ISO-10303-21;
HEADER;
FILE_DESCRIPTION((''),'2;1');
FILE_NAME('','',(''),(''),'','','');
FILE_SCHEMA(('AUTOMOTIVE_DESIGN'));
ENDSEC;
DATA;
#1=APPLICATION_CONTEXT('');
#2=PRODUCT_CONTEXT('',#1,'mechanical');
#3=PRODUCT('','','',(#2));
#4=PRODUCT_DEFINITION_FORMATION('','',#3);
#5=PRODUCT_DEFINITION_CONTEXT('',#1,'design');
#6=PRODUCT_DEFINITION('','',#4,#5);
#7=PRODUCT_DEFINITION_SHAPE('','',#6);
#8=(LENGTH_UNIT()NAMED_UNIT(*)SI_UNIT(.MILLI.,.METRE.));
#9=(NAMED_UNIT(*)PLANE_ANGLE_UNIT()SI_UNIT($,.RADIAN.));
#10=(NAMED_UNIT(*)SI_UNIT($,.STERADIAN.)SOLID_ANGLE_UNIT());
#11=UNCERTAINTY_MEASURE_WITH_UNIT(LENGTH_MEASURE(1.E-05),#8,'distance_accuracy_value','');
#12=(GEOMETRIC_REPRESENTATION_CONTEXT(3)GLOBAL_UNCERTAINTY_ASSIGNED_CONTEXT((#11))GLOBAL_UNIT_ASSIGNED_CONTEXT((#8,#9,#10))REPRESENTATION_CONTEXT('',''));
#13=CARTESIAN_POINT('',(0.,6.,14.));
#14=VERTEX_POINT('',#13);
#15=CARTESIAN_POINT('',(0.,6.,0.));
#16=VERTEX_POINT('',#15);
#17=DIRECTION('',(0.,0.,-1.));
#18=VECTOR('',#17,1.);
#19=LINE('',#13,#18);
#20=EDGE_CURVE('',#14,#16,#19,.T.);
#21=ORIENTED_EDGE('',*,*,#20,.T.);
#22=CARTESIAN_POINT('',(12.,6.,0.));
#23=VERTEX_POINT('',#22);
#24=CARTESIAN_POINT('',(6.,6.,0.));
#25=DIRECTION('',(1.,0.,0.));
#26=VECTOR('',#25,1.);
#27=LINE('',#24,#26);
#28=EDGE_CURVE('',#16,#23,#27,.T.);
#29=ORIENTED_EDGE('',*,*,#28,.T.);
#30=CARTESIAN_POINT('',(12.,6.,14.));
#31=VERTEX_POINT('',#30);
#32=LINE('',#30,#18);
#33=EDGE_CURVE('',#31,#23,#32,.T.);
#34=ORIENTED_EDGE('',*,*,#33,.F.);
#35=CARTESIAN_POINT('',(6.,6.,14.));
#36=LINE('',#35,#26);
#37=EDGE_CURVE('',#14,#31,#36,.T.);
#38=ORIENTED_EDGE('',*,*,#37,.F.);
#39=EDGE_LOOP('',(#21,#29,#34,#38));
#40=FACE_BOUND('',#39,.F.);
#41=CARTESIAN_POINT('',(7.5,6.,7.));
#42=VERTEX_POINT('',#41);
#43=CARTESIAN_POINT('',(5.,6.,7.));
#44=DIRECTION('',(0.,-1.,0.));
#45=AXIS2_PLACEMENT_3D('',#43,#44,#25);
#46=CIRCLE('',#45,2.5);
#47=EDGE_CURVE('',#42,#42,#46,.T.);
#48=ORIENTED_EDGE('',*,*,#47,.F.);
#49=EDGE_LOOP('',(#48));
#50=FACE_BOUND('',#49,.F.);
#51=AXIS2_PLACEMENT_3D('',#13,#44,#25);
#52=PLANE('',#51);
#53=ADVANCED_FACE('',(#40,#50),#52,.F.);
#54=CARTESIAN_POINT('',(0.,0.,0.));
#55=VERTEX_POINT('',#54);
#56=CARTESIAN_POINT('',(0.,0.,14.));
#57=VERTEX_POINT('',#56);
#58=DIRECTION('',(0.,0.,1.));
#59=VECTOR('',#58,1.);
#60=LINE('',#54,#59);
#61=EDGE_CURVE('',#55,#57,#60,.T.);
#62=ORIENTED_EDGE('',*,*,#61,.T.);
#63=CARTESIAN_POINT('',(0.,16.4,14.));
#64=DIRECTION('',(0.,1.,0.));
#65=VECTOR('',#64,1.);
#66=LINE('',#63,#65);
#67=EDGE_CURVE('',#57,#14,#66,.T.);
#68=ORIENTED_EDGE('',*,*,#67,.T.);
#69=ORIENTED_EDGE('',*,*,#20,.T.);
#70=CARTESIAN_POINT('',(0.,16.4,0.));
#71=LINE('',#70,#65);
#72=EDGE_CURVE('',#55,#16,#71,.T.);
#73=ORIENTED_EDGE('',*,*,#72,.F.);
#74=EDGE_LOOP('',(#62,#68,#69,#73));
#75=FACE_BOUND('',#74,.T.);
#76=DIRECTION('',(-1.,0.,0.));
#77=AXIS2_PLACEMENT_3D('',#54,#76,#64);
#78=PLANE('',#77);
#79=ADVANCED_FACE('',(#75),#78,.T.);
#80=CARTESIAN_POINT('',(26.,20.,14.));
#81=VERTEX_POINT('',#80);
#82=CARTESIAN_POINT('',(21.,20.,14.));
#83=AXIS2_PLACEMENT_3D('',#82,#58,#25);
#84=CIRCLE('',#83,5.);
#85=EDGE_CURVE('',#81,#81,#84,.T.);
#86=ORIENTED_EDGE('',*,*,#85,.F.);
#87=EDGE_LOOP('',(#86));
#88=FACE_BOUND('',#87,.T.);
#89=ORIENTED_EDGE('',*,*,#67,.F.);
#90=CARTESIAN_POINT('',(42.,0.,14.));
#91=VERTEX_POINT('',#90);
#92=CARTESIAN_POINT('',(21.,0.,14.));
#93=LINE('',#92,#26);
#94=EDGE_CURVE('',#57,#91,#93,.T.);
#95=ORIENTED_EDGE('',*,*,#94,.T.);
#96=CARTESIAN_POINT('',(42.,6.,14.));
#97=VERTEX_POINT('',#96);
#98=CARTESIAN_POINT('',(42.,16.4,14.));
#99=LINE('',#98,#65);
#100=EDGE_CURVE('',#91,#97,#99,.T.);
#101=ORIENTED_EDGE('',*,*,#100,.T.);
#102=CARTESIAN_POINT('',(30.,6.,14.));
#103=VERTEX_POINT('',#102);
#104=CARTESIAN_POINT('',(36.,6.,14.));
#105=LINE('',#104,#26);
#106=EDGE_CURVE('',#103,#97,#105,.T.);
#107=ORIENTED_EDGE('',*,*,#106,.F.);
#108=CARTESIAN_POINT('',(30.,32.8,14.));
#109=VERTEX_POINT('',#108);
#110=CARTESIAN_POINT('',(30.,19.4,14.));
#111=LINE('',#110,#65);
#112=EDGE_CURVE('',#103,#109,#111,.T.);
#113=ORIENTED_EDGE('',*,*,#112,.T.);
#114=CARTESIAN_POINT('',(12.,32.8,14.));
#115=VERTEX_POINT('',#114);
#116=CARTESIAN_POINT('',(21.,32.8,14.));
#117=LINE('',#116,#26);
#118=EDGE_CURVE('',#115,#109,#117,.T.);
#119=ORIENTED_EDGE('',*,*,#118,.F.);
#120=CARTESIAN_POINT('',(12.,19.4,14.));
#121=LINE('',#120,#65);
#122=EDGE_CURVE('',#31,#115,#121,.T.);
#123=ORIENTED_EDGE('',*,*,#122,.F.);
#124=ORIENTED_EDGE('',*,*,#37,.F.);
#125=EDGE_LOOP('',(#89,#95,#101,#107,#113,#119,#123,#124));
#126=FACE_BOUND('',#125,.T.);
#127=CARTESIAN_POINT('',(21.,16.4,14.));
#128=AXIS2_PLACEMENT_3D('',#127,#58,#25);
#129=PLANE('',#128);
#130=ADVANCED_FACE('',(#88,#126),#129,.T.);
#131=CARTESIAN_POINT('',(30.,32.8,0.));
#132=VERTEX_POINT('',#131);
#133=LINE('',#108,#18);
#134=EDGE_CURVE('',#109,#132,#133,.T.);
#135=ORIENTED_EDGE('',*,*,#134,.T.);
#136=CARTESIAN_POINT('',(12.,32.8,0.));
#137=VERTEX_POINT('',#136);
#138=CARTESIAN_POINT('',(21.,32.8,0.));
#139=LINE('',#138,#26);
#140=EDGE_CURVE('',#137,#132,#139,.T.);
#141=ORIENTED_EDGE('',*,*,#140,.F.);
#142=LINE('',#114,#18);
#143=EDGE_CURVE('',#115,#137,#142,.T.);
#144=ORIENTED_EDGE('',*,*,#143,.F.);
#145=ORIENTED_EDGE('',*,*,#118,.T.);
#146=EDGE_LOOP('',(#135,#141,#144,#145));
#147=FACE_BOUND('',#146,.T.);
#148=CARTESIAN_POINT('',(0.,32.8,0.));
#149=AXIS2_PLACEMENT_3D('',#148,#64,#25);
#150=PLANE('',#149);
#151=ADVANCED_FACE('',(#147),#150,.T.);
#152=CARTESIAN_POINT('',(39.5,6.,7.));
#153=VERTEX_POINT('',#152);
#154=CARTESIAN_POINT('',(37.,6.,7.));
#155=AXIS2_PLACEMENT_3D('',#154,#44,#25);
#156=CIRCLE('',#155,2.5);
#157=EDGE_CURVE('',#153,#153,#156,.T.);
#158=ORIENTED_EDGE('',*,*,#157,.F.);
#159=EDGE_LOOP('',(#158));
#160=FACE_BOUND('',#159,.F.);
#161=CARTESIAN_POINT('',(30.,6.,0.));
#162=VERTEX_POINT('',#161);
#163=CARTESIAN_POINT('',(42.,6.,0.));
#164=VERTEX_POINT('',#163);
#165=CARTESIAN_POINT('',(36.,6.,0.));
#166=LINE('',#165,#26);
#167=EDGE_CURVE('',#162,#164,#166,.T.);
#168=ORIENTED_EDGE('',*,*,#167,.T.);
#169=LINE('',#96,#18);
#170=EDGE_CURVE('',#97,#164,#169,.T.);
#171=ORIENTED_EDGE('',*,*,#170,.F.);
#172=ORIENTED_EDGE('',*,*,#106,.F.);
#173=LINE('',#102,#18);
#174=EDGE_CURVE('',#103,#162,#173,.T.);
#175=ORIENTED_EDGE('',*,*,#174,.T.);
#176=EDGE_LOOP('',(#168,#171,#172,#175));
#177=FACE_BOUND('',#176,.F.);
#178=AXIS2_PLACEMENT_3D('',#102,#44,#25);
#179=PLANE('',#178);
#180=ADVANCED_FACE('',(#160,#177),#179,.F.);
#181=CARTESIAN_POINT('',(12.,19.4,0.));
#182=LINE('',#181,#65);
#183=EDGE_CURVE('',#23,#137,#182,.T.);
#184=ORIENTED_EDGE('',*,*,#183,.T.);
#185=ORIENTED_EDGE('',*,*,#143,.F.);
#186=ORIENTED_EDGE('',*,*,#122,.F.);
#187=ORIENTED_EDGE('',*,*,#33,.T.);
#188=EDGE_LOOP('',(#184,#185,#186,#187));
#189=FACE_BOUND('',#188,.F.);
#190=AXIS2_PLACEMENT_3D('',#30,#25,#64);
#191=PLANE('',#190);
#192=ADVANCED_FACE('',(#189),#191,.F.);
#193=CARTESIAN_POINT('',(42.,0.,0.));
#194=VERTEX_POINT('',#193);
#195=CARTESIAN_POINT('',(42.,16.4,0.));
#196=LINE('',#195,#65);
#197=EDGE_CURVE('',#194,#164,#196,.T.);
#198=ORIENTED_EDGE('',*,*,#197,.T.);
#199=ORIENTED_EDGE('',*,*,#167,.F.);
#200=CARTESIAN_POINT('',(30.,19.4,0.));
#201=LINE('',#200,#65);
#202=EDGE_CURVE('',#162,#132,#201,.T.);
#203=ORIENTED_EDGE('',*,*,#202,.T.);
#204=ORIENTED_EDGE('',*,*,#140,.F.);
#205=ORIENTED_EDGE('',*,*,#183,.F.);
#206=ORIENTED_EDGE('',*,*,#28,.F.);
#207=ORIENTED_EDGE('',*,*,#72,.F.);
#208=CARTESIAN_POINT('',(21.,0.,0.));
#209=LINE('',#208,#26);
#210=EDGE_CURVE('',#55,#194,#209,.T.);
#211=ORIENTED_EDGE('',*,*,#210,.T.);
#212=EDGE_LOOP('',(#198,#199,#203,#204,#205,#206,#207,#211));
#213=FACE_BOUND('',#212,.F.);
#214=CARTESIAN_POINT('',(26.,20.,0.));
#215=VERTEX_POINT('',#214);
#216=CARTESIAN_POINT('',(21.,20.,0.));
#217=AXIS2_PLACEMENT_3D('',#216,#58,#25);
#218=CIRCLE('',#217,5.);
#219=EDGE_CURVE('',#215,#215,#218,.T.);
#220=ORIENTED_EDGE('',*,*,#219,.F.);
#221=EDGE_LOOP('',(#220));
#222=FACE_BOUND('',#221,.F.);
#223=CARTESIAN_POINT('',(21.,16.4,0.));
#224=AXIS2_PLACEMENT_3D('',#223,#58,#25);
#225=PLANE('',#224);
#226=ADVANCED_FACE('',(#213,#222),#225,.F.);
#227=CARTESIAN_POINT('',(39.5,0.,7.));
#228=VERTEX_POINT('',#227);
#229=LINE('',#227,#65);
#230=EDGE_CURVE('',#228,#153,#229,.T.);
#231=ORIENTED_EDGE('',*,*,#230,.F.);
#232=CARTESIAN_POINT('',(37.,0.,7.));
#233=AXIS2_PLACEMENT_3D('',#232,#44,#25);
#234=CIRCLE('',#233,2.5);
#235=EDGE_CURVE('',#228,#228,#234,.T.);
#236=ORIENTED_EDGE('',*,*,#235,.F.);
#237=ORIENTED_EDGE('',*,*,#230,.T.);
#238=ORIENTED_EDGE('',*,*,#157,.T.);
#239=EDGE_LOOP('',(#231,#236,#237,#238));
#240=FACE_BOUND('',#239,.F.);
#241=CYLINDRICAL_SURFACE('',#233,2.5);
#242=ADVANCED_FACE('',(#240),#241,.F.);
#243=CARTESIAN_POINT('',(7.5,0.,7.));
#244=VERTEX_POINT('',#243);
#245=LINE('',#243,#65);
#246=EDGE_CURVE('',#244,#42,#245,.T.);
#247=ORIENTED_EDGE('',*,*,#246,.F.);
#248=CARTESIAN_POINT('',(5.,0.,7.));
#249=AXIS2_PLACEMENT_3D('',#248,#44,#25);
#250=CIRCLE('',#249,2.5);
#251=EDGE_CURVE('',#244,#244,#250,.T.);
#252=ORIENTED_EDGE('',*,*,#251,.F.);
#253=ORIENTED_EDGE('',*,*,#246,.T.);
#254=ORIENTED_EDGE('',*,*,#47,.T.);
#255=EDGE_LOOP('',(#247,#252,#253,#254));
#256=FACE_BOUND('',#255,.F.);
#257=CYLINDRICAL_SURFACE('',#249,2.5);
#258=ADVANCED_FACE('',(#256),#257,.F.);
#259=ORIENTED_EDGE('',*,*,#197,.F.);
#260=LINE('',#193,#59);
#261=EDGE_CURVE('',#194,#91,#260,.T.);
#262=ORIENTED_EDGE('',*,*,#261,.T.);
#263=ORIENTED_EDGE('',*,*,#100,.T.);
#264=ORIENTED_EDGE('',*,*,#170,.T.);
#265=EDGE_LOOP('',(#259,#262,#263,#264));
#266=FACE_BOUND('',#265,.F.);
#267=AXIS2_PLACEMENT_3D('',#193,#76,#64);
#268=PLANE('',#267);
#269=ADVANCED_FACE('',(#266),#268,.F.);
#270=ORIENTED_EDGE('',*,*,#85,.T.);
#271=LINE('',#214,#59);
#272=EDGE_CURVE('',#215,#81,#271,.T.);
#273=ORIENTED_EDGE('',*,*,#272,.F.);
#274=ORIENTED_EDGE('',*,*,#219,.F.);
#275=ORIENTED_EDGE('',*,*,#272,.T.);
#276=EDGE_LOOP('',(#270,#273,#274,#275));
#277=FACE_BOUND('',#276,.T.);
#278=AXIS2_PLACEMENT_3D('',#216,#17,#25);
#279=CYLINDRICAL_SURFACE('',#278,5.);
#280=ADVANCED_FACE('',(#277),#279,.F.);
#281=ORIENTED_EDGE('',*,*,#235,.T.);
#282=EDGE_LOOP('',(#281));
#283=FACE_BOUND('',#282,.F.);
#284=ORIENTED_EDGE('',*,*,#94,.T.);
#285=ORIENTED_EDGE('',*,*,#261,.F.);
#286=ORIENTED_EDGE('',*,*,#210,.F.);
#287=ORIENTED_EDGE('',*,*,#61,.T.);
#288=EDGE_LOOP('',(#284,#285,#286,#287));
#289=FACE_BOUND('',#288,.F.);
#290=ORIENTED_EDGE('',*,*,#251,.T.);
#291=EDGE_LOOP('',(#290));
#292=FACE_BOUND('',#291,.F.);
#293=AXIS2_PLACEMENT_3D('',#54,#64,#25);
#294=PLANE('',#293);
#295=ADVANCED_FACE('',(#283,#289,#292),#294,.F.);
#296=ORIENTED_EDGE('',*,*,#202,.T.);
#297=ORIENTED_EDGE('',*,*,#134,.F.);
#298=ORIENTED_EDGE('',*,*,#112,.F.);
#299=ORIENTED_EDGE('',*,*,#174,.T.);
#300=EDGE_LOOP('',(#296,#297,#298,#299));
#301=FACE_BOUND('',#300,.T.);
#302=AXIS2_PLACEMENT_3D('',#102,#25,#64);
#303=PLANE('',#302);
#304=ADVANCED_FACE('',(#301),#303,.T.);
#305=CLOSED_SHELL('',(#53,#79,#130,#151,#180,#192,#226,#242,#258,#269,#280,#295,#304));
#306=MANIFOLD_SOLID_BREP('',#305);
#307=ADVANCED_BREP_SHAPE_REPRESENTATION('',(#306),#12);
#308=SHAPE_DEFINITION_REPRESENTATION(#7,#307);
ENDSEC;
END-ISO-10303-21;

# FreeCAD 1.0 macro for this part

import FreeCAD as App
import Part
import Sketcher
Q = App.Units.Quantity

doc = App.newDocument("Part")
body = doc.addObject("PartDesign::Body", "Body")

sketch1 = body.newObject("Sketcher::SketchObject", "Sketch")
sketch1.AttachmentSupport = (doc.getObject("XY_Plane"), [""])
sketch1.MapMode = "FlatFace"
sketch1.addGeometry(Part.LineSegment(App.Vector(0, 33, 0), App.Vector(0, 0, 0)), False)
sketch1.addGeometry(Part.LineSegment(App.Vector(0, 0, 0), App.Vector(42, 0, 0)), False)
sketch1.addGeometry(Part.LineSegment(App.Vector(42, 0, 0), App.Vector(42, 33, 0)), False)
sketch1.addGeometry(Part.LineSegment(App.Vector(42, 33, 0), App.Vector(0, 33, 0)), False)
sketch1.addGeometry(Part.Circle(App.Vector(21, 20, 0), App.Vector(0, 0, 1), 5), False)
sketch1.addConstraint(Sketcher.Constraint("Coincident", 0, 2, 1, 1))
sketch1.addConstraint(Sketcher.Constraint("Coincident", 1, 2, 2, 1))
sketch1.addConstraint(Sketcher.Constraint("Coincident", 2, 2, 3, 1))
sketch1.addConstraint(Sketcher.Constraint("Coincident", 3, 2, 0, 1))
sketch1.addConstraint(Sketcher.Constraint("Vertical", 0))
sketch1.addConstraint(Sketcher.Constraint("Horizontal", 1))
sketch1.addConstraint(Sketcher.Constraint("Vertical", 2))
sketch1.addConstraint(Sketcher.Constraint("Horizontal", 3))
sketch1.addConstraint(Sketcher.Constraint("Coincident", 0, 2, -1, 1))
sketch1.addConstraint(Sketcher.Constraint("Diameter", 4, Q("10 mm")))
sketch1.addConstraint(Sketcher.Constraint("DistanceX", 1, 1, 1, 2, Q("42 mm")))
sketch1.addConstraint(Sketcher.Constraint("DistanceY", 0, 2, 0, 1, Q("32.8 mm")))
sketch1.addConstraint(Sketcher.Constraint("DistanceX", -1, 1, 4, 3, Q("21 mm")))
sketch1.addConstraint(Sketcher.Constraint("DistanceY", -1, 1, 4, 3, Q("20 mm")))
pad1 = body.newObject("PartDesign::Pad", "Pad")
pad1.Profile = sketch1
pad1.Length = 14

sketch2 = body.newObject("Sketcher::SketchObject", "Sketch001")
sketch2.AttachmentSupport = (doc.getObject("XY_Plane"), [""])
sketch2.MapMode = "FlatFace"
sketch2.AttachmentOffset = App.Placement(App.Vector(0, 0, 14), App.Rotation())
sketch2.addGeometry(Part.LineSegment(App.Vector(0, 33, 0), App.Vector(0, 6, 0)), False)
sketch2.addGeometry(Part.LineSegment(App.Vector(0, 6, 0), App.Vector(12, 6, 0)), False)
sketch2.addGeometry(Part.LineSegment(App.Vector(12, 6, 0), App.Vector(12, 33, 0)), False)
sketch2.addGeometry(Part.LineSegment(App.Vector(12, 33, 0), App.Vector(0, 33, 0)), False)
sketch2.addGeometry(Part.LineSegment(App.Vector(30, 33, 0), App.Vector(30, 6, 0)), False)
sketch2.addGeometry(Part.LineSegment(App.Vector(30, 6, 0), App.Vector(42, 6, 0)), False)
sketch2.addGeometry(Part.LineSegment(App.Vector(42, 6, 0), App.Vector(42, 33, 0)), False)
sketch2.addGeometry(Part.LineSegment(App.Vector(42, 33, 0), App.Vector(30, 33, 0)), False)
sketch2.addConstraint(Sketcher.Constraint("Coincident", 0, 2, 1, 1))
sketch2.addConstraint(Sketcher.Constraint("Coincident", 1, 2, 2, 1))
sketch2.addConstraint(Sketcher.Constraint("Coincident", 2, 2, 3, 1))
sketch2.addConstraint(Sketcher.Constraint("Coincident", 3, 2, 0, 1))
sketch2.addConstraint(Sketcher.Constraint("Coincident", 4, 2, 5, 1))
sketch2.addConstraint(Sketcher.Constraint("Coincident", 5, 2, 6, 1))
sketch2.addConstraint(Sketcher.Constraint("Coincident", 6, 2, 7, 1))
sketch2.addConstraint(Sketcher.Constraint("Coincident", 7, 2, 4, 1))
sketch2.addConstraint(Sketcher.Constraint("Vertical", 0))
sketch2.addConstraint(Sketcher.Constraint("Horizontal", 1))
sketch2.addConstraint(Sketcher.Constraint("Vertical", 2))
sketch2.addConstraint(Sketcher.Constraint("Horizontal", 3))
sketch2.addConstraint(Sketcher.Constraint("Vertical", 4))
sketch2.addConstraint(Sketcher.Constraint("Horizontal", 5))
sketch2.addConstraint(Sketcher.Constraint("Vertical", 6))
sketch2.addConstraint(Sketcher.Constraint("Horizontal", 7))
sketch2.addConstraint(Sketcher.Constraint("PointOnObject", 0, 2, -2))
sketch2.addConstraint(Sketcher.Constraint("Horizontal", 1, 2, 4, 2))
sketch2.addConstraint(Sketcher.Constraint("Horizontal", 3, 2, 6, 2))
sketch2.addConstraint(Sketcher.Constraint("Equal", 3, 5))
sketch2.addConstraint(Sketcher.Constraint("DistanceX", 1, 1, 1, 2, Q("12 mm")))
sketch2.addConstraint(Sketcher.Constraint("DistanceY", 0, 2, 0, 1, Q("26.8 mm")))
sketch2.addConstraint(Sketcher.Constraint("DistanceY", -1, 1, 0, 2, Q("6 mm")))
sketch2.addConstraint(Sketcher.Constraint("DistanceX", -1, 1, 4, 2, Q("30 mm")))
pocket1 = body.newObject("PartDesign::Pocket", "Pocket")
pocket1.Profile = sketch2
pocket1.Length = 14

sketch3 = body.newObject("Sketcher::SketchObject", "Sketch002")
sketch3.AttachmentSupport = (doc.getObject("XZ_Plane"), [""])
sketch3.MapMode = "FlatFace"
sketch3.addGeometry(Part.Circle(App.Vector(5, 7, 0), App.Vector(0, 0, 1), 2.5), False)
sketch3.addGeometry(Part.Circle(App.Vector(37, 7, 0), App.Vector(0, 0, 1), 2.5), False)
sketch3.addConstraint(Sketcher.Constraint("Equal", 0, 1))
sketch3.addConstraint(Sketcher.Constraint("Horizontal", 0, 3, 1, 3))
sketch3.addConstraint(Sketcher.Constraint("Diameter", 0, Q("5 mm")))
sketch3.addConstraint(Sketcher.Constraint("DistanceX", -1, 1, 0, 3, Q("5 mm")))
sketch3.addConstraint(Sketcher.Constraint("DistanceY", -1, 1, 0, 3, Q("7 mm")))
sketch3.addConstraint(Sketcher.Constraint("DistanceX", -1, 1, 1, 3, Q("37 mm")))
pocket2 = body.newObject("PartDesign::Pocket", "Pocket001")
pocket2.Profile = sketch3
pocket2.Length = 25.4

doc.recompute()
